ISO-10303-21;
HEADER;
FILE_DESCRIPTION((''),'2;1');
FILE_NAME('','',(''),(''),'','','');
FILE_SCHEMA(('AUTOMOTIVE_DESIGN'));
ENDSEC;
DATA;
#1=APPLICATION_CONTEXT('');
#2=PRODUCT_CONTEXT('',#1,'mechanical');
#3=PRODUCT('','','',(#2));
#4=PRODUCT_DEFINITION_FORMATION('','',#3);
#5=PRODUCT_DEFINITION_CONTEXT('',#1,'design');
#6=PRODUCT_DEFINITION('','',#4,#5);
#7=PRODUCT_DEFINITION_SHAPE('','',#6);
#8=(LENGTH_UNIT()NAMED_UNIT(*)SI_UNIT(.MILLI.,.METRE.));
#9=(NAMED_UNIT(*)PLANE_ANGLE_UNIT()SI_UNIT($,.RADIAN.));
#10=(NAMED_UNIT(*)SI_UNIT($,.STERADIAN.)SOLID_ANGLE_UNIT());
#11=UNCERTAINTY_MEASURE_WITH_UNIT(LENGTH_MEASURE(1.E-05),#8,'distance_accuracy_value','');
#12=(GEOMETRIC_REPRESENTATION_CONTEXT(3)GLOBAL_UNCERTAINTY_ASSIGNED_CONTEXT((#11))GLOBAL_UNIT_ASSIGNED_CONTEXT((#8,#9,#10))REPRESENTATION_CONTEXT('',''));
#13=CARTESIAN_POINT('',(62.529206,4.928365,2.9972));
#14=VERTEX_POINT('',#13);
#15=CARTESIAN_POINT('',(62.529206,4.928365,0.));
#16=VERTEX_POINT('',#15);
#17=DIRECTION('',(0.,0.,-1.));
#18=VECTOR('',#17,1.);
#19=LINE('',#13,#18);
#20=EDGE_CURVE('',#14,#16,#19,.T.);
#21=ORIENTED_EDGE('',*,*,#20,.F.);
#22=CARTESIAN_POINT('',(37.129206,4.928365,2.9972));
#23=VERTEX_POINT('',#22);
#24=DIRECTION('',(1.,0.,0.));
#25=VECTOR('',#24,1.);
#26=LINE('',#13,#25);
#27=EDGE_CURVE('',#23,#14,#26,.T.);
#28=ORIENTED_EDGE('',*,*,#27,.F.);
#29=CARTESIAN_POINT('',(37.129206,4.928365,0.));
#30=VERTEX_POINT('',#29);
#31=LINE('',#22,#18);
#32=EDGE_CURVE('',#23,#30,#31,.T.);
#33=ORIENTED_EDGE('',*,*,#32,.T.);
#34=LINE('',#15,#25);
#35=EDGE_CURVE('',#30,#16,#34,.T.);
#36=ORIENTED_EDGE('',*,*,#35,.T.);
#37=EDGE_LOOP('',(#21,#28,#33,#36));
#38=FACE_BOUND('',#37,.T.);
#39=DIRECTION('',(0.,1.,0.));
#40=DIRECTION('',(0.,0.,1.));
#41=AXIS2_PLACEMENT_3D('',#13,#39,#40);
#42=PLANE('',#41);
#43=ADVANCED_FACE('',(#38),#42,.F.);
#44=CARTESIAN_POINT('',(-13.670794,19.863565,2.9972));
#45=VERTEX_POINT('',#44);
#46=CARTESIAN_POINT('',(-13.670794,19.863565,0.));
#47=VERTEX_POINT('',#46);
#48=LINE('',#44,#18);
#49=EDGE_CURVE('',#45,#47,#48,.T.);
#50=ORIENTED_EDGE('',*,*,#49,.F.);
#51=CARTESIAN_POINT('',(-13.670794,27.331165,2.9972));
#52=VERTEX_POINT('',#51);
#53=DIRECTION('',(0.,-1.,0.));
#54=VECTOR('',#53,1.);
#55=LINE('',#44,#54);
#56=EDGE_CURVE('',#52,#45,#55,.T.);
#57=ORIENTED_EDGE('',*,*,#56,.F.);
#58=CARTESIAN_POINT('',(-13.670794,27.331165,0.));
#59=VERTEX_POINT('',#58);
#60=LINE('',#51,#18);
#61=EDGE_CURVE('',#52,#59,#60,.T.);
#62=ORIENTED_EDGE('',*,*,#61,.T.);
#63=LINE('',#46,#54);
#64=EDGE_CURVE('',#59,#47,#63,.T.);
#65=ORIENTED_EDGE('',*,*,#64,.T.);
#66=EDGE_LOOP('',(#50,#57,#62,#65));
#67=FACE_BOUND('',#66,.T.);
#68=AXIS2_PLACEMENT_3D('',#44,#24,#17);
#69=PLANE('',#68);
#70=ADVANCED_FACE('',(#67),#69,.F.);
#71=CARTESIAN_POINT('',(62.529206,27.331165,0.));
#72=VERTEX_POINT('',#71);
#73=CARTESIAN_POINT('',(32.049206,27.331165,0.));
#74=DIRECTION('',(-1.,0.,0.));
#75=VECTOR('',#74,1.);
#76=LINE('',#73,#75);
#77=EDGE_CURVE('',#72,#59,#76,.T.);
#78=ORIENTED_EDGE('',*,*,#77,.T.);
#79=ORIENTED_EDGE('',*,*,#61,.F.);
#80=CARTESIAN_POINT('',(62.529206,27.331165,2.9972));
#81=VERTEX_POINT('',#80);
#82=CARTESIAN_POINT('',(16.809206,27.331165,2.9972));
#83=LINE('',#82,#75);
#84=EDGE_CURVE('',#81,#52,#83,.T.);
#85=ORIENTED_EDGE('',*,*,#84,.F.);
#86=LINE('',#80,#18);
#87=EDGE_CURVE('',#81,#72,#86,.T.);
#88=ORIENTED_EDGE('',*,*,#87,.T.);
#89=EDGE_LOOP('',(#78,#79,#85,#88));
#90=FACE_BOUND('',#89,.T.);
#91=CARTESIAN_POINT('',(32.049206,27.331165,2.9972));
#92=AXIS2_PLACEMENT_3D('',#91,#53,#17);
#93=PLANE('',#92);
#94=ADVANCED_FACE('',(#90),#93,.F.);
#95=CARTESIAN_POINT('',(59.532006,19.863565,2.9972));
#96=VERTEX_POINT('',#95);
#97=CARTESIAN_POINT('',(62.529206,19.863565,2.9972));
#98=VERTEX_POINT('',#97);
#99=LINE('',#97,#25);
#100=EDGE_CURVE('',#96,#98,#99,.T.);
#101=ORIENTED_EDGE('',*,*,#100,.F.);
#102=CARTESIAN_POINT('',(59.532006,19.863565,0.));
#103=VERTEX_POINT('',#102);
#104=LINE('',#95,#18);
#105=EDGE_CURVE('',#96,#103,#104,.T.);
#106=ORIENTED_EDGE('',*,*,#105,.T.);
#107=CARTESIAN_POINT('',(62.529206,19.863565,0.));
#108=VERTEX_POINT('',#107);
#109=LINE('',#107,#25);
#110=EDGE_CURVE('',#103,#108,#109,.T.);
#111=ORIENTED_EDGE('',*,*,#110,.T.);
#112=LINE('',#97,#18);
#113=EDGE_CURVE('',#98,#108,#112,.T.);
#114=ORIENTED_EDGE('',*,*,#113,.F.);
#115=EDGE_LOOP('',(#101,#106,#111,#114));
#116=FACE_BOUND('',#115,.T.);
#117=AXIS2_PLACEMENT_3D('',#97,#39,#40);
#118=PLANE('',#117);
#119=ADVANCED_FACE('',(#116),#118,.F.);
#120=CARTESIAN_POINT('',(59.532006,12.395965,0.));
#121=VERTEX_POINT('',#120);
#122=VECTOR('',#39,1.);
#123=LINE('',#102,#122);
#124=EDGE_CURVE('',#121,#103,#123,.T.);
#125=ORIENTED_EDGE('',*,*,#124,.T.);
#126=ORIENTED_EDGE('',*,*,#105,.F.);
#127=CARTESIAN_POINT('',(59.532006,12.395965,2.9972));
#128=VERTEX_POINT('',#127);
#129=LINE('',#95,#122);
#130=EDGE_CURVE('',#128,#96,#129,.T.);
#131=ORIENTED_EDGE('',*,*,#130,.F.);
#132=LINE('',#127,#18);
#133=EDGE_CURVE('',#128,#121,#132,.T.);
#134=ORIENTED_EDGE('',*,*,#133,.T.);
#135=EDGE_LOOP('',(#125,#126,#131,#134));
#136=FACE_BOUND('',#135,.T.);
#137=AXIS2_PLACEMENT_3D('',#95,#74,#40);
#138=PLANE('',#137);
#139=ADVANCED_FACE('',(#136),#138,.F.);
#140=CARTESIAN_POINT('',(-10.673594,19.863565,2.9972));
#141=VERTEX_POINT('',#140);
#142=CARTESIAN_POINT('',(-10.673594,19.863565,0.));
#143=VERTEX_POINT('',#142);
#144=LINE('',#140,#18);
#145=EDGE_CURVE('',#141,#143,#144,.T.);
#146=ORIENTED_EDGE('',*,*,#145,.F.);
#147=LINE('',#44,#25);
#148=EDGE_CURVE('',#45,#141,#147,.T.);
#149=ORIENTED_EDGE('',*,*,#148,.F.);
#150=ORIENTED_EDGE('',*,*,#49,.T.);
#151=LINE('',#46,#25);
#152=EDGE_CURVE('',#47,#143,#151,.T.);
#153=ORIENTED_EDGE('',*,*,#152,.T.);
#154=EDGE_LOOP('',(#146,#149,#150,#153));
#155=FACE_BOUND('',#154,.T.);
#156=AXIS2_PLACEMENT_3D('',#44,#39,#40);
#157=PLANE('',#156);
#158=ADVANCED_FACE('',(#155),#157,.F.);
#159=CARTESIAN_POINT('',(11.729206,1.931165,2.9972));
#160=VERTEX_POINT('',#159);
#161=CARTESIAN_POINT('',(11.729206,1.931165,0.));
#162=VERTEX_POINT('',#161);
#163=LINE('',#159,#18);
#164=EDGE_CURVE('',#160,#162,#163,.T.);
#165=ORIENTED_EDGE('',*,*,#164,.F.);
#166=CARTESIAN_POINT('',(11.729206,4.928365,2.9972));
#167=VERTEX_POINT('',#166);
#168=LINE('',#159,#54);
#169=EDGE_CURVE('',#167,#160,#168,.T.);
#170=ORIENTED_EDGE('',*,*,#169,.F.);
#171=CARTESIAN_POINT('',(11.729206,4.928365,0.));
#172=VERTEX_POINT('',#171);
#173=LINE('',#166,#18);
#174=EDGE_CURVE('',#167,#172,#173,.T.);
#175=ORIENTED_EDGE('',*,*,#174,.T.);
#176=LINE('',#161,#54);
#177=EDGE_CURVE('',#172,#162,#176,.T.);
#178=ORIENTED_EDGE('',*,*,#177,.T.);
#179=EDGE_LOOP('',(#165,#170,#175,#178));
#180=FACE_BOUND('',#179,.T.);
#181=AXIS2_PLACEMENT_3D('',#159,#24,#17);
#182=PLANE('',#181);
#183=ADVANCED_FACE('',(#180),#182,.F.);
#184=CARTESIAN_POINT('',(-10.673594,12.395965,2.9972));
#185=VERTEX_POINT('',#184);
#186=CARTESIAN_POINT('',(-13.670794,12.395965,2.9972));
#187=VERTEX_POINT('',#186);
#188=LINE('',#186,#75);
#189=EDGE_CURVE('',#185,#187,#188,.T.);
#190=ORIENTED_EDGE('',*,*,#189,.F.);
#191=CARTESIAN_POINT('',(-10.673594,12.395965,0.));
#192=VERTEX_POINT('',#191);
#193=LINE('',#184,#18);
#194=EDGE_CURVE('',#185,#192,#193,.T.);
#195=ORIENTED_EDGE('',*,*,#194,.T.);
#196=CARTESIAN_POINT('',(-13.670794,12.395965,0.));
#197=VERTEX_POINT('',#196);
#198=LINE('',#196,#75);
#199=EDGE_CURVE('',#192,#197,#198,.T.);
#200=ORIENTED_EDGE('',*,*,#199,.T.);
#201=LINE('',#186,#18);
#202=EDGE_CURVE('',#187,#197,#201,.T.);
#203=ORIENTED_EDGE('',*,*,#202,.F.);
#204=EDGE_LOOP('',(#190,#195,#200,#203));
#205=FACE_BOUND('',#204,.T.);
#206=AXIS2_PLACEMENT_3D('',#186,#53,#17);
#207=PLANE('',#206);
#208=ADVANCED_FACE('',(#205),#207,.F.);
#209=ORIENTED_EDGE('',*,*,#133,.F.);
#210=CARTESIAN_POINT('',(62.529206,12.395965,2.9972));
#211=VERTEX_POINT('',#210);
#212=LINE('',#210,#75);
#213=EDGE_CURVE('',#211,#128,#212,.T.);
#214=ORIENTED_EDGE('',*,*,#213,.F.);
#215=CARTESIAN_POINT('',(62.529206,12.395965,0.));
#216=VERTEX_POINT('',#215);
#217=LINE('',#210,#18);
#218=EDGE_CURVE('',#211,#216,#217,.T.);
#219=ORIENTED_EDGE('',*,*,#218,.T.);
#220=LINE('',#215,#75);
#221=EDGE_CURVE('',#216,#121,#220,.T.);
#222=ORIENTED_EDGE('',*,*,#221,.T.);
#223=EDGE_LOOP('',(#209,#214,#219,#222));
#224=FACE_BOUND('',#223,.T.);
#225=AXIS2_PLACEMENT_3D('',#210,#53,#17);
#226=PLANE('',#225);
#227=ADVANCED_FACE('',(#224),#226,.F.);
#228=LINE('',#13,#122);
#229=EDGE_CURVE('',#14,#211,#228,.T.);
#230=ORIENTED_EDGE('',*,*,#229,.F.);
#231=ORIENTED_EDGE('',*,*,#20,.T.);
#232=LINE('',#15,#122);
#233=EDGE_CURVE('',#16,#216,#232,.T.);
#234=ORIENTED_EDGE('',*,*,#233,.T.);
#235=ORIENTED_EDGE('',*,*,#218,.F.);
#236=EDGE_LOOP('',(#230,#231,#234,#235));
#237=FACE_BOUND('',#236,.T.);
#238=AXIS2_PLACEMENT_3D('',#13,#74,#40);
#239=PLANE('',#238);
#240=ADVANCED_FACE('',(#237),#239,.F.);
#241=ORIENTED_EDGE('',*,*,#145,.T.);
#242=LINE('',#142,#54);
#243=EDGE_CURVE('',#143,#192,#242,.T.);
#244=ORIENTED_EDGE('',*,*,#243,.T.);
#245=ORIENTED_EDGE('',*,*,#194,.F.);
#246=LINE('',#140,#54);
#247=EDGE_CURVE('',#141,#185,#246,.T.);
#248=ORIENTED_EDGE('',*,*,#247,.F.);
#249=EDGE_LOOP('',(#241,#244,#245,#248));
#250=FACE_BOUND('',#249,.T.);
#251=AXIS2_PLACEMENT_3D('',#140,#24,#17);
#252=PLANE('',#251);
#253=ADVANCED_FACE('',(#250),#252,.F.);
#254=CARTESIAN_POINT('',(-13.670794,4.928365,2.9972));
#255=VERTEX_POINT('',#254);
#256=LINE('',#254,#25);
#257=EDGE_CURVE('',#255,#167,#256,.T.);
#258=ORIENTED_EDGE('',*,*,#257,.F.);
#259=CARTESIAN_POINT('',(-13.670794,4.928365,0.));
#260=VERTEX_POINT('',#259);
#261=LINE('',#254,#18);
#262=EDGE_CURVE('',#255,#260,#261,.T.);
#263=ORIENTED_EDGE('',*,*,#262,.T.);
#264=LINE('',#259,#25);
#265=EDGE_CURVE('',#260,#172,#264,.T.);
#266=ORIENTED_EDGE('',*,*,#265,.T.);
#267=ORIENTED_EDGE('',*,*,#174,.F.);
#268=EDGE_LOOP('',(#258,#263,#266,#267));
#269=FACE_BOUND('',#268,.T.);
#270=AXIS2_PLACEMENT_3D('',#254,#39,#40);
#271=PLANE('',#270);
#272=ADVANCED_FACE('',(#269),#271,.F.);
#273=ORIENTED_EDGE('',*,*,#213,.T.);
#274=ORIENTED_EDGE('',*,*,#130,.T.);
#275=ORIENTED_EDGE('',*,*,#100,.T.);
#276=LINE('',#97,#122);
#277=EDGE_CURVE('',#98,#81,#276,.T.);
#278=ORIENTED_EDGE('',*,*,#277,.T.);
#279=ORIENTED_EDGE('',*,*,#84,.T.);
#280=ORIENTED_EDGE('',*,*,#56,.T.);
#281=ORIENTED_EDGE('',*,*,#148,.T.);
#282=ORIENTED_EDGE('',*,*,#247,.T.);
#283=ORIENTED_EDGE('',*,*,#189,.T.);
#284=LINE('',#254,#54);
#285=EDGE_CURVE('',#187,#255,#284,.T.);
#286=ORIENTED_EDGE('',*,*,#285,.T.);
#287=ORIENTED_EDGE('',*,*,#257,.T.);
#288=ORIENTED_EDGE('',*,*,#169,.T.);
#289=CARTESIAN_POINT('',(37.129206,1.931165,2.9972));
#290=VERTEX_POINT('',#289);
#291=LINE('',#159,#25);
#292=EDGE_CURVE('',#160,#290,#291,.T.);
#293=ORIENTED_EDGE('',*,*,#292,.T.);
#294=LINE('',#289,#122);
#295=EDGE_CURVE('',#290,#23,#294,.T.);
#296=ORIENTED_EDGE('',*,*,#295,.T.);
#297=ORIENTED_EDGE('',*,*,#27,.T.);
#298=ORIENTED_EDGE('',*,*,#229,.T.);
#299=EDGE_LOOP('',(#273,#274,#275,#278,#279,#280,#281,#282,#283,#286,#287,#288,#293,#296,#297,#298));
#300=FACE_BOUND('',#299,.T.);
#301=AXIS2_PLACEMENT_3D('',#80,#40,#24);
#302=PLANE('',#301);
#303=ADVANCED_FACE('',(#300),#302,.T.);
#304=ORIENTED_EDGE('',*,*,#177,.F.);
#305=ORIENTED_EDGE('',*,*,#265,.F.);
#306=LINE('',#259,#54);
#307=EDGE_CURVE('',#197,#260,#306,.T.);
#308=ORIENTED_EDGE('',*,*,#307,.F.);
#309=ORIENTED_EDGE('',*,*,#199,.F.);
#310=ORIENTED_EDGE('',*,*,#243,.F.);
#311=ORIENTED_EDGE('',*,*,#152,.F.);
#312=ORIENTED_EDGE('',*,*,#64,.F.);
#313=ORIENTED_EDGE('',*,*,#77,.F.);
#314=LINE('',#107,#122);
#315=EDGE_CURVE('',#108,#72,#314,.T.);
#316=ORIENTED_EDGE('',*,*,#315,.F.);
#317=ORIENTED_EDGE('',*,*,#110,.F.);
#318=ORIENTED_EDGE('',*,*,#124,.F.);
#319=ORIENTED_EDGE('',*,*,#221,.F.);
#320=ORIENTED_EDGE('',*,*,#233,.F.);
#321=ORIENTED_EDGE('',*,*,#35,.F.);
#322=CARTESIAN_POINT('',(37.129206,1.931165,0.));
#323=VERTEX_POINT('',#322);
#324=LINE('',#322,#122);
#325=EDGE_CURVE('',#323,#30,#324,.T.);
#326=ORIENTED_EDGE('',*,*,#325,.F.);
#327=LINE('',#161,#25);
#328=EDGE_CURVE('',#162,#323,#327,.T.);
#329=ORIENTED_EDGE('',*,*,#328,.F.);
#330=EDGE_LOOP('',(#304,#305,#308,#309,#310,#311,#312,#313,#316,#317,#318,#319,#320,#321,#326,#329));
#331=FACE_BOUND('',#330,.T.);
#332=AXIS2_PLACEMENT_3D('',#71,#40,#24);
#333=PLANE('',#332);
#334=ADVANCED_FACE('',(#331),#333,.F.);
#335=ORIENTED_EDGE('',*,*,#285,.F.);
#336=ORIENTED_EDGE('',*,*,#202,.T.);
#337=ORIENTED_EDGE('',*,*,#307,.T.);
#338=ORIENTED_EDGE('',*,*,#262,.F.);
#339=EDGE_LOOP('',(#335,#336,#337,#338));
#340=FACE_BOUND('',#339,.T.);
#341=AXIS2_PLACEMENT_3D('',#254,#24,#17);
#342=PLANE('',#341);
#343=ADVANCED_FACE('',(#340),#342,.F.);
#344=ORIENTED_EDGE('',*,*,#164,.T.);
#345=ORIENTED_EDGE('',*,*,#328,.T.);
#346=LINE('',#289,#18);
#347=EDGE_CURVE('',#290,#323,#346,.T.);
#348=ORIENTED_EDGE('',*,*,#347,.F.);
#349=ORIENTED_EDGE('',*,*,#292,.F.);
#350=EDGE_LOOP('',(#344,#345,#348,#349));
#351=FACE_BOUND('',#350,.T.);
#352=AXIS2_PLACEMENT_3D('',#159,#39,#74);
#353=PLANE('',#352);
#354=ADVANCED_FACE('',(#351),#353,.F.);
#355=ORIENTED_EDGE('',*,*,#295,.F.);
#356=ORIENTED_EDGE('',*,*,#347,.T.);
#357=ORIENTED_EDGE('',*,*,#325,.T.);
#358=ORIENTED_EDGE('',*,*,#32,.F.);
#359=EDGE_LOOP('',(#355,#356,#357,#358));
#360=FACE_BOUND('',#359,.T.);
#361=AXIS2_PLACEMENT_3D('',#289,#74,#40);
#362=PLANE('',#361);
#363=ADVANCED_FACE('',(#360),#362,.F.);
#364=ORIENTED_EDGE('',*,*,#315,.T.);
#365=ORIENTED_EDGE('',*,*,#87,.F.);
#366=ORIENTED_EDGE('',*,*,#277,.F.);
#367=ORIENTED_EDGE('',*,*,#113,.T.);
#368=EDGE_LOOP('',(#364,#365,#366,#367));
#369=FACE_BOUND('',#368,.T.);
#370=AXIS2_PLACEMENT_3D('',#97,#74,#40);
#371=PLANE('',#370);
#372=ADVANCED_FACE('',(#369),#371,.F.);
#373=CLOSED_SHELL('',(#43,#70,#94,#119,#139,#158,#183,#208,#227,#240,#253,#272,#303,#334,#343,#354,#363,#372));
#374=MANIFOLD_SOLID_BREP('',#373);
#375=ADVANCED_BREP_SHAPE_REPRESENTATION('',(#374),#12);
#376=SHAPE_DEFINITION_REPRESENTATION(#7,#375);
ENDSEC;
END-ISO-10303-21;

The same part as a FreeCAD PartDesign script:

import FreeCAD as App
import Part
import Sketcher
from FreeCAD import Vector
Q = App.Units.Quantity


def add_polygon(sketch, points):
    """Adds a closed chain of lines whose ends are joined by coincident constraints."""
    first, n = sketch.GeometryCount, len(points)
    for a, b in zip(points, points[1:] + points[:1]):
        sketch.addGeometry(Part.LineSegment(App.Vector(*a, 0), App.Vector(*b, 0)), False)
    for i in range(n):
        sketch.addConstraint(Sketcher.Constraint("Coincident", first + i, 2, first + (i + 1) % n, 1))

doc = App.newDocument("Part")
body = doc.addObject("PartDesign::Body", "Body")

# Sketch on XY plane
sketch1 = body.newObject("Sketcher::SketchObject", "Sketch")
sketch1.AttachmentSupport = (doc.getObject("XY_Plane"), [""])
sketch1.MapMode = "FlatFace"
add_polygon(sketch1, [(62.529206, 27.331165), (-13.670794, 27.331165), (-13.670794, 19.863565), (-10.673594, 19.863565), (-10.673594, 12.395965), (-13.670794, 12.395965), (-13.670794, 4.928365), (11.729206, 4.928365), (11.729206, 1.931165), (37.129206, 1.931165), (37.129206, 4.928365), (62.529206, 4.928365), (62.529206, 12.395965), (59.532006, 12.395965), (59.532006, 19.863565), (62.529206, 19.863565)])  # lines 0-15
sketch1.addConstraint([
    Sketcher.Constraint("Horizontal", 0),
    Sketcher.Constraint("Vertical", 1),
    Sketcher.Constraint("Horizontal", 2),
    Sketcher.Constraint("Vertical", 3),
    Sketcher.Constraint("Horizontal", 4),
    Sketcher.Constraint("Vertical", 5),
    Sketcher.Constraint("Horizontal", 6),
    Sketcher.Constraint("Vertical", 7),
    Sketcher.Constraint("Horizontal", 8),
    Sketcher.Constraint("Vertical", 9),
    Sketcher.Constraint("Horizontal", 10),
    Sketcher.Constraint("Vertical", 11),
    Sketcher.Constraint("Horizontal", 12),
    Sketcher.Constraint("Vertical", 13),
    Sketcher.Constraint("Horizontal", 14),
    Sketcher.Constraint("Vertical", 15),
    Sketcher.Constraint("Horizontal", 6, 2, 9, 2),
    Sketcher.Constraint("Horizontal", 4, 2, 11, 2),
    Sketcher.Constraint("Horizontal", 2, 2, 13, 2),
    Sketcher.Constraint("Vertical", 1, 2, 4, 2),
    Sketcher.Constraint("Vertical", 11, 2, 14, 2),
    Sketcher.Constraint("Equal", 6, 8),
    Sketcher.Constraint("Equal", 8, 10),
    Sketcher.Constraint("Equal", 4, 12),
    Sketcher.Constraint("Equal", 1, 3),
    Sketcher.Constraint("Equal", 3, 5),
    Sketcher.Constraint("Equal", 14, 7),
    Sketcher.Constraint("DistanceX", 0, 2, 0, 1, Q("3 in")),
    Sketcher.Constraint("DistanceX", 2, 1, 2, 2, Q("0.118 in")),
    Sketcher.Constraint("DistanceY", 1, 2, 1, 1, Q("0.294 in")),
    Sketcher.Constraint("DistanceX", 0, 2, -1, 1, 13.670794),
    Sketcher.Constraint("DistanceY", -1, 1, 0, 2, 27.331165),
])
pad1 = body.newObject("PartDesign::Pad", "Pad")
pad1.Profile = sketch1
pad1.Length = Q("0.118 in")

doc.recompute()
